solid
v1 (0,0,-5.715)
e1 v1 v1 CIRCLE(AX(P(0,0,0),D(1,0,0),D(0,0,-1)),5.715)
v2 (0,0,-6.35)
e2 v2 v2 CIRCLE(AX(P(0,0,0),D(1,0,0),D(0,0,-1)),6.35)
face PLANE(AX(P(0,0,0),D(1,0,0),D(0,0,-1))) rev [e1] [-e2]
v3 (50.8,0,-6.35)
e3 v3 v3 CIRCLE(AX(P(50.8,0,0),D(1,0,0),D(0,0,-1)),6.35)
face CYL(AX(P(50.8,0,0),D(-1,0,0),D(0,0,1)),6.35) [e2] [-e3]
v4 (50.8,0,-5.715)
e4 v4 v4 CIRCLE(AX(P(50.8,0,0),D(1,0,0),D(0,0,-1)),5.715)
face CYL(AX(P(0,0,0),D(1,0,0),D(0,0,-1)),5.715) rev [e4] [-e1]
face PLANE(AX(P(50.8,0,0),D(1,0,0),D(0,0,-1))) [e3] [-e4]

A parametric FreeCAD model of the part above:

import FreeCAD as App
import Part
import Sketcher
from FreeCAD import Vector
Q = App.Units.Quantity

doc = App.newDocument("Part")
params = doc.addObject("Spreadsheet::Sheet", "Params")
for row, (alias, value) in enumerate([
    ("sketch1_diameter", "0.5 in"),
    ("pad1_length", "2 in"),
    ("sketch2_diameter", "0.45 in"),
], start=1):
    params.set(f"A{row}", alias)
    params.set(f"B{row}", "=" + value)
    params.setAlias(f"B{row}", alias)

body = doc.addObject("PartDesign::Body", "Body")

# Sketch on YZ plane
sketch1 = doc.addObject("Sketcher::SketchObject", "Sketch")
body.addObject(sketch1)
sketch1.AttachmentSupport = (doc.YZ_Plane, [""])
sketch1.MapMode = "FlatFace"
sketch1.addGeometry(Part.Circle(Vector(0, 0, 0), Vector(0, 0, 1), 6), False)
sketch1.addConstraint([
    Sketcher.Constraint("Coincident", 0, 3, -1, 1),
    Sketcher.Constraint("Diameter", 0, Q("0.5 in")),
])
sketch1.setExpression("Constraints[1]", "Params.sketch1_diameter")
pad1 = doc.addObject("PartDesign::Pad", "Pad")
body.addObject(pad1)
pad1.Profile = sketch1
pad1.setExpression("Length", "Params.pad1_length")

# Sketch on YZ plane
sketch2 = doc.addObject("Sketcher::SketchObject", "Sketch001")
body.addObject(sketch2)
sketch2.AttachmentSupport = (doc.YZ_Plane, [""])
sketch2.MapMode = "FlatFace"
sketch2.AttachmentOffset = App.Placement(Vector(0, 0, 2 * 25.4), App.Rotation())
sketch2.addGeometry(Part.Circle(Vector(0, 0, 0), Vector(0, 0, 1), 6), False)
sketch2.addConstraint([
    Sketcher.Constraint("Coincident", 0, 3, -1, 1),
    Sketcher.Constraint("Diameter", 0, Q("0.45 in")),
])
sketch2.setExpression("Constraints[1]", "Params.sketch2_diameter")
pocket1 = doc.addObject("PartDesign::Pocket", "Pocket")
body.addObject(pocket1)
pocket1.Profile = sketch2
pocket1.Type = "ThroughAll"

doc.recompute()
